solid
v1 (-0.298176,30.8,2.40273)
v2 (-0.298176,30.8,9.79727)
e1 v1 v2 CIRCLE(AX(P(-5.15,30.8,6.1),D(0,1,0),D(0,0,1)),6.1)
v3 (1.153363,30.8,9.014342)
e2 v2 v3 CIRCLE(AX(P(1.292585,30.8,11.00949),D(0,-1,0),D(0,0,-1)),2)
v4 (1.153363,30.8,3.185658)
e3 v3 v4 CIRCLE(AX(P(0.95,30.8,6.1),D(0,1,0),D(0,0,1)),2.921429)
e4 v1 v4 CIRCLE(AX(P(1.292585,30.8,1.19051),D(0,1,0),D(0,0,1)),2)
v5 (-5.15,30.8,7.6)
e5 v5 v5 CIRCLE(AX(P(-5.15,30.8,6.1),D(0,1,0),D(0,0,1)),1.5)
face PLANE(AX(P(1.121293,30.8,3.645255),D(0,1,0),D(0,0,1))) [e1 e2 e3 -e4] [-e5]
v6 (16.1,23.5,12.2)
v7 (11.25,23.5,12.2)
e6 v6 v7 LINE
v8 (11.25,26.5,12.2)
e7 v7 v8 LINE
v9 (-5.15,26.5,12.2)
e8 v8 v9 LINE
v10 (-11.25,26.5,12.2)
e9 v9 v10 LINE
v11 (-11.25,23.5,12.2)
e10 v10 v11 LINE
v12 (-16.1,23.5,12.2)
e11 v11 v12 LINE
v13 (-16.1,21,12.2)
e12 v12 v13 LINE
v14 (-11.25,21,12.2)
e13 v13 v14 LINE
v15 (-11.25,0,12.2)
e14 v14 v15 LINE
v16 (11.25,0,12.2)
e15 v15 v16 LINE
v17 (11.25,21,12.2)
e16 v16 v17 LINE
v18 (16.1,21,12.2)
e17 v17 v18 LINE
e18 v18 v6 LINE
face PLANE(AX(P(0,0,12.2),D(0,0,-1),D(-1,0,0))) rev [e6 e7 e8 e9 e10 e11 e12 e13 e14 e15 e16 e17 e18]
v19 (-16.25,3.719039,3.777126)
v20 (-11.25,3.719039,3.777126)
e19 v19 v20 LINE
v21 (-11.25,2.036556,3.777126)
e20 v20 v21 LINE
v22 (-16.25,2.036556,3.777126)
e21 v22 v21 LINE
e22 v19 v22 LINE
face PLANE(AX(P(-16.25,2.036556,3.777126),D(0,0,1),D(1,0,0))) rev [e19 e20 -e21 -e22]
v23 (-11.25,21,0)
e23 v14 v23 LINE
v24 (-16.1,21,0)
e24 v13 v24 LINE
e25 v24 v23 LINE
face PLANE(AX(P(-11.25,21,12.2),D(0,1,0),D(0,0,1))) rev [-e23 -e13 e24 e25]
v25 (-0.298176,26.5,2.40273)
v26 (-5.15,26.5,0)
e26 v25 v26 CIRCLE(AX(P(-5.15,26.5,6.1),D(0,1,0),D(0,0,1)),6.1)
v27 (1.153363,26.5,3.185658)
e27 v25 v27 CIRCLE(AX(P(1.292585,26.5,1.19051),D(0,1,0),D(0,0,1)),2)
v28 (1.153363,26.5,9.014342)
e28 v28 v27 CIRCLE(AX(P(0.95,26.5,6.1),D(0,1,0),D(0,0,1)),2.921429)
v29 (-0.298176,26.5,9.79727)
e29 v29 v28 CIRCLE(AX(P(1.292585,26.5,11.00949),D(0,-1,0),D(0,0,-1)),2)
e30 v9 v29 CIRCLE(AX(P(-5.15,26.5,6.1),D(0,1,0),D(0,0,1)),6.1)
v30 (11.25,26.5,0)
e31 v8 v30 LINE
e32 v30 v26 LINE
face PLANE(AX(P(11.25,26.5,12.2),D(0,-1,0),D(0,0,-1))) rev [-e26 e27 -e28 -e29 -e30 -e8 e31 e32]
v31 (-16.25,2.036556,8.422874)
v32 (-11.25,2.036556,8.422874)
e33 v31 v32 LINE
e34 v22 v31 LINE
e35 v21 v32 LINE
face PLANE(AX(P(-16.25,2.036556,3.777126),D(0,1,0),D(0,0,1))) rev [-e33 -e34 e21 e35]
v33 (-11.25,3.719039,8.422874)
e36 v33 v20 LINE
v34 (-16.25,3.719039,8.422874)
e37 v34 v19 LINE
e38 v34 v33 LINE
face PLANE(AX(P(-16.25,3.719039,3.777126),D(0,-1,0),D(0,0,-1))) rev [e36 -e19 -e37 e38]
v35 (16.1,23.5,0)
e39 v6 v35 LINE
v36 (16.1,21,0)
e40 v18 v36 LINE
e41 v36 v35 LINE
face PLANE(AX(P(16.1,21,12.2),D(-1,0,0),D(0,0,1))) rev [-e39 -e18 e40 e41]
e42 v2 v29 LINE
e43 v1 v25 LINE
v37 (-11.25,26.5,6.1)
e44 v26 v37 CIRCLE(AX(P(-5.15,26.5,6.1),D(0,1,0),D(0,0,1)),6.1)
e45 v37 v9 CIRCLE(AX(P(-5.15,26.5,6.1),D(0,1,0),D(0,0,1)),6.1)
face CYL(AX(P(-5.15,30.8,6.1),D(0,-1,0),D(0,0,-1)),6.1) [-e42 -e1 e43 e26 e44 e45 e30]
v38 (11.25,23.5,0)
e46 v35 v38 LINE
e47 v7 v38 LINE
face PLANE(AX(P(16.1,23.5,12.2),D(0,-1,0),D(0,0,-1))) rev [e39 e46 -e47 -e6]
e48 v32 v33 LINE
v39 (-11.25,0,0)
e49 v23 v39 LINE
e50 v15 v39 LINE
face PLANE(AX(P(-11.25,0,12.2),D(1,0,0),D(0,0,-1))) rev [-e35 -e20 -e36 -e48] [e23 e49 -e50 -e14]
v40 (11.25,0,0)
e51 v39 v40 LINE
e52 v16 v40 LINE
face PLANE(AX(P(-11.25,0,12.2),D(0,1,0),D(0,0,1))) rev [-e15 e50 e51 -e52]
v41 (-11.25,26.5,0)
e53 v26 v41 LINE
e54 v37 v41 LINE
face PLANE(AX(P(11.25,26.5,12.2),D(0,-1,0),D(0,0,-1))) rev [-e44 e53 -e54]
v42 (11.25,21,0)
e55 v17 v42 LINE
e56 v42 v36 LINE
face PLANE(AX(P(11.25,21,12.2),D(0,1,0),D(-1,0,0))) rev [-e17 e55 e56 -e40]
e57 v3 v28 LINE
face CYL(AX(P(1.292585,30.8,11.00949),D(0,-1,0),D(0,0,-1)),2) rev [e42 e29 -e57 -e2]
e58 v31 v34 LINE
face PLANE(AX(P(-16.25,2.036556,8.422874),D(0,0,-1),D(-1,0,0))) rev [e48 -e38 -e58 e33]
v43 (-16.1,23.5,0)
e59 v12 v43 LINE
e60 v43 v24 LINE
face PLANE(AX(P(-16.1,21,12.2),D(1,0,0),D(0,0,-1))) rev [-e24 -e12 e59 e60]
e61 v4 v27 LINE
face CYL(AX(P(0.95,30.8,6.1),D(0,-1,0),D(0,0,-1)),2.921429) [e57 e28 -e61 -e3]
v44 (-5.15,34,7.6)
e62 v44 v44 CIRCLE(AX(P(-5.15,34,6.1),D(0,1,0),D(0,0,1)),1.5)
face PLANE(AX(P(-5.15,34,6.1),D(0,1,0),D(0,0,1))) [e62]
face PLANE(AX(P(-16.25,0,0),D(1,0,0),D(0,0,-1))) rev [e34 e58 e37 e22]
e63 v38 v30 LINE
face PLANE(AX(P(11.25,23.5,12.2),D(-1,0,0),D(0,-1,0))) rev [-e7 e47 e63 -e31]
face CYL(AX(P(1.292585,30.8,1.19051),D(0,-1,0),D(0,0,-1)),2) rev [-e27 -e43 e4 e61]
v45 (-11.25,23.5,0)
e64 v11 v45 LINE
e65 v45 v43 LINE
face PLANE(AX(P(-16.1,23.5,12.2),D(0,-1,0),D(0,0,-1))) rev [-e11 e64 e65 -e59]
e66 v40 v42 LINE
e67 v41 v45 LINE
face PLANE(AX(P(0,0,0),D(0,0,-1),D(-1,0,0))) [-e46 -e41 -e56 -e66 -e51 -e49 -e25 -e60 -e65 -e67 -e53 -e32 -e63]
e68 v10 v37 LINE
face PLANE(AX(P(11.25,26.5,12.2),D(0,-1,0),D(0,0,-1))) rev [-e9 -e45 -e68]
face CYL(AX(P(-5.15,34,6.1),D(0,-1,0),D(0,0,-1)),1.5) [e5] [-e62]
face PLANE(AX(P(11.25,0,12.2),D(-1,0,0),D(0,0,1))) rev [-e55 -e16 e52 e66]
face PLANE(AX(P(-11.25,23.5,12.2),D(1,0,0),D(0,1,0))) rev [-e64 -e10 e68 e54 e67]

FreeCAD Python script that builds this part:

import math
import FreeCAD as App
import Part
import Sketcher

doc = App.newDocument("Part")
body = doc.addObject("PartDesign::Body", "Body")

sketch1 = body.newObject("Sketcher::SketchObject", "Sketch")
sketch1.AttachmentSupport = (doc.getObject("XY_Plane"), [""])
sketch1.MapMode = "FlatFace"
sketch1.addGeometry([
    Part.LineSegment(App.Vector(-11.2, 0, 0), App.Vector(11.2, 0, 0)),
    Part.LineSegment(App.Vector(11.2, 0, 0), App.Vector(11.2, 21, 0)),
    Part.LineSegment(App.Vector(11.2, 21, 0), App.Vector(16.1, 21, 0)),
    Part.LineSegment(App.Vector(16.1, 21, 0), App.Vector(16.1, 23.5, 0)),
    Part.LineSegment(App.Vector(16.1, 23.5, 0), App.Vector(11.2, 23.5, 0)),
    Part.LineSegment(App.Vector(11.2, 23.5, 0), App.Vector(11.2, 26.5, 0)),
    Part.LineSegment(App.Vector(11.2, 26.5, 0), App.Vector(-11.2, 26.5, 0)),
    Part.LineSegment(App.Vector(-11.2, 26.5, 0), App.Vector(-11.2, 23.5, 0)),
    Part.LineSegment(App.Vector(-11.2, 23.5, 0), App.Vector(-16.1, 23.5, 0)),
    Part.LineSegment(App.Vector(-16.1, 23.5, 0), App.Vector(-16.1, 21, 0)),
    Part.LineSegment(App.Vector(-16.1, 21, 0), App.Vector(-11.2, 21, 0)),
    Part.LineSegment(App.Vector(-11.2, 21, 0), App.Vector(-11.2, 0, 0)),
], False)
sketch1.addConstraint([
    Sketcher.Constraint("Coincident", 0, 2, 1, 1),
    Sketcher.Constraint("Coincident", 1, 2, 2, 1),
    Sketcher.Constraint("Coincident", 2, 2, 3, 1),
    Sketcher.Constraint("Coincident", 3, 2, 4, 1),
    Sketcher.Constraint("Coincident", 4, 2, 5, 1),
    Sketcher.Constraint("Coincident", 5, 2, 6, 1),
    Sketcher.Constraint("Coincident", 6, 2, 7, 1),
    Sketcher.Constraint("Coincident", 7, 2, 8, 1),
    Sketcher.Constraint("Coincident", 8, 2, 9, 1),
    Sketcher.Constraint("Coincident", 9, 2, 10, 1),
    Sketcher.Constraint("Coincident", 10, 2, 11, 1),
    Sketcher.Constraint("Coincident", 11, 2, 0, 1),
    Sketcher.Constraint("Horizontal", 0),
    Sketcher.Constraint("Vertical", 1),
    Sketcher.Constraint("Horizontal", 2),
    Sketcher.Constraint("Vertical", 3),
    Sketcher.Constraint("Horizontal", 4),
    Sketcher.Constraint("Vertical", 5),
    Sketcher.Constraint("Horizontal", 6),
    Sketcher.Constraint("Vertical", 7),
    Sketcher.Constraint("Horizontal", 8),
    Sketcher.Constraint("Vertical", 9),
    Sketcher.Constraint("Horizontal", 10),
    Sketcher.Constraint("Vertical", 11),
    Sketcher.Constraint("Symmetric", 0, 2, 11, 2, -1, 1),
    Sketcher.Constraint("Symmetric", 4, 2, 7, 2, -2),
    Sketcher.Constraint("Symmetric", 2, 2, 9, 2, -2),
    Sketcher.Constraint("Vertical", 1, 2, 4, 2),
    Sketcher.Constraint("DistanceY", 1, 1, 1, 2, 21.0),
    Sketcher.Constraint("DistanceY", 5, 1, 5, 2, 3.0),
    Sketcher.Constraint("DistanceX", 0, 1, 0, 2, 22.5),
    Sketcher.Constraint("DistanceY", 3, 1, 3, 2, 2.5),
    Sketcher.Constraint("DistanceX", 2, 1, 2, 2, 4.85),
])
pad1 = body.newObject("PartDesign::Pad", "Pad")
pad1.Profile = sketch1
pad1.Length = 12.2

sketch2 = body.newObject("Sketcher::SketchObject", "Sketch001")
sketch2.AttachmentSupport = (doc.getObject("XZ_Plane"), [""])
sketch2.MapMode = "FlatFace"
sketch2.AttachmentOffset = App.Placement(App.Vector(0, 0, -26.5), App.Rotation())
sketch2.addGeometry([
    Part.ArcOfCircle(Part.Circle(App.Vector(-5.2, 6.1, 0), App.Vector(0, 0, 1), 6.1), math.radians(37), math.radians(323)),
    Part.ArcOfCircle(Part.Circle(App.Vector(1.3, 11, 0), App.Vector(0, 0, 1), 2), math.radians(-143), math.radians(-94)),
    Part.ArcOfCircle(Part.Circle(App.Vector(1, 6.1, 0), App.Vector(0, 0, 1), 2.9), math.radians(-86), math.radians(86)),
    Part.ArcOfCircle(Part.Circle(App.Vector(1.3, 1.2, 0), App.Vector(0, 0, 1), 2), math.radians(94), math.radians(143)),
], False)
sketch2.addConstraint([
    Sketcher.Constraint("Tangent", 0, 1, 1, 1),
    Sketcher.Constraint("Tangent", 1, 2, 2, 2),
    Sketcher.Constraint("Tangent", 2, 1, 3, 1),
    Sketcher.Constraint("Tangent", 3, 2, 0, 2),
    Sketcher.Constraint("Equal", 1, 3),
    Sketcher.Constraint("Horizontal", 0, 3, 2, 3),
    Sketcher.Constraint("Radius", 1, 2.0),
    Sketcher.Constraint("Radius", 0, 6.1),
    Sketcher.Constraint("DistanceY", -1, 1, 0, 3, 6.1),
    Sketcher.Constraint("DistanceX", 0, 3, 2, 3, 6.1),
    Sketcher.Constraint("DistanceX", 0, 3, -1, 1, 5.15),
    Sketcher.Constraint("Radius", 2, 2.921429),
])
pad2 = body.newObject("PartDesign::Pad", "Pad001")
pad2.Profile = sketch2
pad2.Length = 4.3
pad2.Reversed = True

sketch3 = body.newObject("Sketcher::SketchObject", "Sketch002")
sketch3.AttachmentSupport = (doc.getObject("XZ_Plane"), [""])
sketch3.MapMode = "FlatFace"
sketch3.AttachmentOffset = App.Placement(App.Vector(0, 0, -30.8), App.Rotation())
sketch3.addGeometry(Part.Circle(App.Vector(-5.2, 6.1, 0), App.Vector(0, 0, 1), 1.5), False)
sketch3.addConstraint([
    Sketcher.Constraint("Diameter", 0, 3.0),
    Sketcher.Constraint("DistanceY", -1, 1, 0, 3, 6.1),
    Sketcher.Constraint("DistanceX", 0, 3, -1, 1, 5.15),
])
pad3 = body.newObject("PartDesign::Pad", "Pad002")
pad3.Profile = sketch3
pad3.Length = 3.2
pad3.Reversed = True

sketch4 = body.newObject("Sketcher::SketchObject", "Sketch003")
sketch4.AttachmentSupport = (doc.getObject("YZ_Plane"), [""])
sketch4.MapMode = "FlatFace"
sketch4.AttachmentOffset = App.Placement(App.Vector(0, 0, -11.25), App.Rotation())
sketch4.addGeometry([
    Part.LineSegment(App.Vector(3.7, 3.8, 0), App.Vector(2, 3.8, 0)),
    Part.LineSegment(App.Vector(2, 3.8, 0), App.Vector(2, 8.4, 0)),
    Part.LineSegment(App.Vector(2, 8.4, 0), App.Vector(3.7, 8.4, 0)),
    Part.LineSegment(App.Vector(3.7, 8.4, 0), App.Vector(3.7, 3.8, 0)),
], False)
sketch4.addConstraint([
    Sketcher.Constraint("Coincident", 0, 2, 1, 1),
    Sketcher.Constraint("Coincident", 1, 2, 2, 1),
    Sketcher.Constraint("Coincident", 2, 2, 3, 1),
    Sketcher.Constraint("Coincident", 3, 2, 0, 1),
    Sketcher.Constraint("Horizontal", 0),
    Sketcher.Constraint("Vertical", 1),
    Sketcher.Constraint("Horizontal", 2),
    Sketcher.Constraint("Vertical", 3),
    Sketcher.Constraint("DistanceX", 0, 2, 0, 1, 1.682484),
    Sketcher.Constraint("DistanceY", 1, 1, 1, 2, 4.645748),
    Sketcher.Constraint("DistanceX", -1, 1, 2, 2, 3.719039),
    Sketcher.Constraint("DistanceY", -1, 1, 0, 2, 3.777126),
])
pad4 = body.newObject("PartDesign::Pad", "Pad003")
pad4.Profile = sketch4
pad4.Length = 5
pad4.Reversed = True

doc.recompute()
